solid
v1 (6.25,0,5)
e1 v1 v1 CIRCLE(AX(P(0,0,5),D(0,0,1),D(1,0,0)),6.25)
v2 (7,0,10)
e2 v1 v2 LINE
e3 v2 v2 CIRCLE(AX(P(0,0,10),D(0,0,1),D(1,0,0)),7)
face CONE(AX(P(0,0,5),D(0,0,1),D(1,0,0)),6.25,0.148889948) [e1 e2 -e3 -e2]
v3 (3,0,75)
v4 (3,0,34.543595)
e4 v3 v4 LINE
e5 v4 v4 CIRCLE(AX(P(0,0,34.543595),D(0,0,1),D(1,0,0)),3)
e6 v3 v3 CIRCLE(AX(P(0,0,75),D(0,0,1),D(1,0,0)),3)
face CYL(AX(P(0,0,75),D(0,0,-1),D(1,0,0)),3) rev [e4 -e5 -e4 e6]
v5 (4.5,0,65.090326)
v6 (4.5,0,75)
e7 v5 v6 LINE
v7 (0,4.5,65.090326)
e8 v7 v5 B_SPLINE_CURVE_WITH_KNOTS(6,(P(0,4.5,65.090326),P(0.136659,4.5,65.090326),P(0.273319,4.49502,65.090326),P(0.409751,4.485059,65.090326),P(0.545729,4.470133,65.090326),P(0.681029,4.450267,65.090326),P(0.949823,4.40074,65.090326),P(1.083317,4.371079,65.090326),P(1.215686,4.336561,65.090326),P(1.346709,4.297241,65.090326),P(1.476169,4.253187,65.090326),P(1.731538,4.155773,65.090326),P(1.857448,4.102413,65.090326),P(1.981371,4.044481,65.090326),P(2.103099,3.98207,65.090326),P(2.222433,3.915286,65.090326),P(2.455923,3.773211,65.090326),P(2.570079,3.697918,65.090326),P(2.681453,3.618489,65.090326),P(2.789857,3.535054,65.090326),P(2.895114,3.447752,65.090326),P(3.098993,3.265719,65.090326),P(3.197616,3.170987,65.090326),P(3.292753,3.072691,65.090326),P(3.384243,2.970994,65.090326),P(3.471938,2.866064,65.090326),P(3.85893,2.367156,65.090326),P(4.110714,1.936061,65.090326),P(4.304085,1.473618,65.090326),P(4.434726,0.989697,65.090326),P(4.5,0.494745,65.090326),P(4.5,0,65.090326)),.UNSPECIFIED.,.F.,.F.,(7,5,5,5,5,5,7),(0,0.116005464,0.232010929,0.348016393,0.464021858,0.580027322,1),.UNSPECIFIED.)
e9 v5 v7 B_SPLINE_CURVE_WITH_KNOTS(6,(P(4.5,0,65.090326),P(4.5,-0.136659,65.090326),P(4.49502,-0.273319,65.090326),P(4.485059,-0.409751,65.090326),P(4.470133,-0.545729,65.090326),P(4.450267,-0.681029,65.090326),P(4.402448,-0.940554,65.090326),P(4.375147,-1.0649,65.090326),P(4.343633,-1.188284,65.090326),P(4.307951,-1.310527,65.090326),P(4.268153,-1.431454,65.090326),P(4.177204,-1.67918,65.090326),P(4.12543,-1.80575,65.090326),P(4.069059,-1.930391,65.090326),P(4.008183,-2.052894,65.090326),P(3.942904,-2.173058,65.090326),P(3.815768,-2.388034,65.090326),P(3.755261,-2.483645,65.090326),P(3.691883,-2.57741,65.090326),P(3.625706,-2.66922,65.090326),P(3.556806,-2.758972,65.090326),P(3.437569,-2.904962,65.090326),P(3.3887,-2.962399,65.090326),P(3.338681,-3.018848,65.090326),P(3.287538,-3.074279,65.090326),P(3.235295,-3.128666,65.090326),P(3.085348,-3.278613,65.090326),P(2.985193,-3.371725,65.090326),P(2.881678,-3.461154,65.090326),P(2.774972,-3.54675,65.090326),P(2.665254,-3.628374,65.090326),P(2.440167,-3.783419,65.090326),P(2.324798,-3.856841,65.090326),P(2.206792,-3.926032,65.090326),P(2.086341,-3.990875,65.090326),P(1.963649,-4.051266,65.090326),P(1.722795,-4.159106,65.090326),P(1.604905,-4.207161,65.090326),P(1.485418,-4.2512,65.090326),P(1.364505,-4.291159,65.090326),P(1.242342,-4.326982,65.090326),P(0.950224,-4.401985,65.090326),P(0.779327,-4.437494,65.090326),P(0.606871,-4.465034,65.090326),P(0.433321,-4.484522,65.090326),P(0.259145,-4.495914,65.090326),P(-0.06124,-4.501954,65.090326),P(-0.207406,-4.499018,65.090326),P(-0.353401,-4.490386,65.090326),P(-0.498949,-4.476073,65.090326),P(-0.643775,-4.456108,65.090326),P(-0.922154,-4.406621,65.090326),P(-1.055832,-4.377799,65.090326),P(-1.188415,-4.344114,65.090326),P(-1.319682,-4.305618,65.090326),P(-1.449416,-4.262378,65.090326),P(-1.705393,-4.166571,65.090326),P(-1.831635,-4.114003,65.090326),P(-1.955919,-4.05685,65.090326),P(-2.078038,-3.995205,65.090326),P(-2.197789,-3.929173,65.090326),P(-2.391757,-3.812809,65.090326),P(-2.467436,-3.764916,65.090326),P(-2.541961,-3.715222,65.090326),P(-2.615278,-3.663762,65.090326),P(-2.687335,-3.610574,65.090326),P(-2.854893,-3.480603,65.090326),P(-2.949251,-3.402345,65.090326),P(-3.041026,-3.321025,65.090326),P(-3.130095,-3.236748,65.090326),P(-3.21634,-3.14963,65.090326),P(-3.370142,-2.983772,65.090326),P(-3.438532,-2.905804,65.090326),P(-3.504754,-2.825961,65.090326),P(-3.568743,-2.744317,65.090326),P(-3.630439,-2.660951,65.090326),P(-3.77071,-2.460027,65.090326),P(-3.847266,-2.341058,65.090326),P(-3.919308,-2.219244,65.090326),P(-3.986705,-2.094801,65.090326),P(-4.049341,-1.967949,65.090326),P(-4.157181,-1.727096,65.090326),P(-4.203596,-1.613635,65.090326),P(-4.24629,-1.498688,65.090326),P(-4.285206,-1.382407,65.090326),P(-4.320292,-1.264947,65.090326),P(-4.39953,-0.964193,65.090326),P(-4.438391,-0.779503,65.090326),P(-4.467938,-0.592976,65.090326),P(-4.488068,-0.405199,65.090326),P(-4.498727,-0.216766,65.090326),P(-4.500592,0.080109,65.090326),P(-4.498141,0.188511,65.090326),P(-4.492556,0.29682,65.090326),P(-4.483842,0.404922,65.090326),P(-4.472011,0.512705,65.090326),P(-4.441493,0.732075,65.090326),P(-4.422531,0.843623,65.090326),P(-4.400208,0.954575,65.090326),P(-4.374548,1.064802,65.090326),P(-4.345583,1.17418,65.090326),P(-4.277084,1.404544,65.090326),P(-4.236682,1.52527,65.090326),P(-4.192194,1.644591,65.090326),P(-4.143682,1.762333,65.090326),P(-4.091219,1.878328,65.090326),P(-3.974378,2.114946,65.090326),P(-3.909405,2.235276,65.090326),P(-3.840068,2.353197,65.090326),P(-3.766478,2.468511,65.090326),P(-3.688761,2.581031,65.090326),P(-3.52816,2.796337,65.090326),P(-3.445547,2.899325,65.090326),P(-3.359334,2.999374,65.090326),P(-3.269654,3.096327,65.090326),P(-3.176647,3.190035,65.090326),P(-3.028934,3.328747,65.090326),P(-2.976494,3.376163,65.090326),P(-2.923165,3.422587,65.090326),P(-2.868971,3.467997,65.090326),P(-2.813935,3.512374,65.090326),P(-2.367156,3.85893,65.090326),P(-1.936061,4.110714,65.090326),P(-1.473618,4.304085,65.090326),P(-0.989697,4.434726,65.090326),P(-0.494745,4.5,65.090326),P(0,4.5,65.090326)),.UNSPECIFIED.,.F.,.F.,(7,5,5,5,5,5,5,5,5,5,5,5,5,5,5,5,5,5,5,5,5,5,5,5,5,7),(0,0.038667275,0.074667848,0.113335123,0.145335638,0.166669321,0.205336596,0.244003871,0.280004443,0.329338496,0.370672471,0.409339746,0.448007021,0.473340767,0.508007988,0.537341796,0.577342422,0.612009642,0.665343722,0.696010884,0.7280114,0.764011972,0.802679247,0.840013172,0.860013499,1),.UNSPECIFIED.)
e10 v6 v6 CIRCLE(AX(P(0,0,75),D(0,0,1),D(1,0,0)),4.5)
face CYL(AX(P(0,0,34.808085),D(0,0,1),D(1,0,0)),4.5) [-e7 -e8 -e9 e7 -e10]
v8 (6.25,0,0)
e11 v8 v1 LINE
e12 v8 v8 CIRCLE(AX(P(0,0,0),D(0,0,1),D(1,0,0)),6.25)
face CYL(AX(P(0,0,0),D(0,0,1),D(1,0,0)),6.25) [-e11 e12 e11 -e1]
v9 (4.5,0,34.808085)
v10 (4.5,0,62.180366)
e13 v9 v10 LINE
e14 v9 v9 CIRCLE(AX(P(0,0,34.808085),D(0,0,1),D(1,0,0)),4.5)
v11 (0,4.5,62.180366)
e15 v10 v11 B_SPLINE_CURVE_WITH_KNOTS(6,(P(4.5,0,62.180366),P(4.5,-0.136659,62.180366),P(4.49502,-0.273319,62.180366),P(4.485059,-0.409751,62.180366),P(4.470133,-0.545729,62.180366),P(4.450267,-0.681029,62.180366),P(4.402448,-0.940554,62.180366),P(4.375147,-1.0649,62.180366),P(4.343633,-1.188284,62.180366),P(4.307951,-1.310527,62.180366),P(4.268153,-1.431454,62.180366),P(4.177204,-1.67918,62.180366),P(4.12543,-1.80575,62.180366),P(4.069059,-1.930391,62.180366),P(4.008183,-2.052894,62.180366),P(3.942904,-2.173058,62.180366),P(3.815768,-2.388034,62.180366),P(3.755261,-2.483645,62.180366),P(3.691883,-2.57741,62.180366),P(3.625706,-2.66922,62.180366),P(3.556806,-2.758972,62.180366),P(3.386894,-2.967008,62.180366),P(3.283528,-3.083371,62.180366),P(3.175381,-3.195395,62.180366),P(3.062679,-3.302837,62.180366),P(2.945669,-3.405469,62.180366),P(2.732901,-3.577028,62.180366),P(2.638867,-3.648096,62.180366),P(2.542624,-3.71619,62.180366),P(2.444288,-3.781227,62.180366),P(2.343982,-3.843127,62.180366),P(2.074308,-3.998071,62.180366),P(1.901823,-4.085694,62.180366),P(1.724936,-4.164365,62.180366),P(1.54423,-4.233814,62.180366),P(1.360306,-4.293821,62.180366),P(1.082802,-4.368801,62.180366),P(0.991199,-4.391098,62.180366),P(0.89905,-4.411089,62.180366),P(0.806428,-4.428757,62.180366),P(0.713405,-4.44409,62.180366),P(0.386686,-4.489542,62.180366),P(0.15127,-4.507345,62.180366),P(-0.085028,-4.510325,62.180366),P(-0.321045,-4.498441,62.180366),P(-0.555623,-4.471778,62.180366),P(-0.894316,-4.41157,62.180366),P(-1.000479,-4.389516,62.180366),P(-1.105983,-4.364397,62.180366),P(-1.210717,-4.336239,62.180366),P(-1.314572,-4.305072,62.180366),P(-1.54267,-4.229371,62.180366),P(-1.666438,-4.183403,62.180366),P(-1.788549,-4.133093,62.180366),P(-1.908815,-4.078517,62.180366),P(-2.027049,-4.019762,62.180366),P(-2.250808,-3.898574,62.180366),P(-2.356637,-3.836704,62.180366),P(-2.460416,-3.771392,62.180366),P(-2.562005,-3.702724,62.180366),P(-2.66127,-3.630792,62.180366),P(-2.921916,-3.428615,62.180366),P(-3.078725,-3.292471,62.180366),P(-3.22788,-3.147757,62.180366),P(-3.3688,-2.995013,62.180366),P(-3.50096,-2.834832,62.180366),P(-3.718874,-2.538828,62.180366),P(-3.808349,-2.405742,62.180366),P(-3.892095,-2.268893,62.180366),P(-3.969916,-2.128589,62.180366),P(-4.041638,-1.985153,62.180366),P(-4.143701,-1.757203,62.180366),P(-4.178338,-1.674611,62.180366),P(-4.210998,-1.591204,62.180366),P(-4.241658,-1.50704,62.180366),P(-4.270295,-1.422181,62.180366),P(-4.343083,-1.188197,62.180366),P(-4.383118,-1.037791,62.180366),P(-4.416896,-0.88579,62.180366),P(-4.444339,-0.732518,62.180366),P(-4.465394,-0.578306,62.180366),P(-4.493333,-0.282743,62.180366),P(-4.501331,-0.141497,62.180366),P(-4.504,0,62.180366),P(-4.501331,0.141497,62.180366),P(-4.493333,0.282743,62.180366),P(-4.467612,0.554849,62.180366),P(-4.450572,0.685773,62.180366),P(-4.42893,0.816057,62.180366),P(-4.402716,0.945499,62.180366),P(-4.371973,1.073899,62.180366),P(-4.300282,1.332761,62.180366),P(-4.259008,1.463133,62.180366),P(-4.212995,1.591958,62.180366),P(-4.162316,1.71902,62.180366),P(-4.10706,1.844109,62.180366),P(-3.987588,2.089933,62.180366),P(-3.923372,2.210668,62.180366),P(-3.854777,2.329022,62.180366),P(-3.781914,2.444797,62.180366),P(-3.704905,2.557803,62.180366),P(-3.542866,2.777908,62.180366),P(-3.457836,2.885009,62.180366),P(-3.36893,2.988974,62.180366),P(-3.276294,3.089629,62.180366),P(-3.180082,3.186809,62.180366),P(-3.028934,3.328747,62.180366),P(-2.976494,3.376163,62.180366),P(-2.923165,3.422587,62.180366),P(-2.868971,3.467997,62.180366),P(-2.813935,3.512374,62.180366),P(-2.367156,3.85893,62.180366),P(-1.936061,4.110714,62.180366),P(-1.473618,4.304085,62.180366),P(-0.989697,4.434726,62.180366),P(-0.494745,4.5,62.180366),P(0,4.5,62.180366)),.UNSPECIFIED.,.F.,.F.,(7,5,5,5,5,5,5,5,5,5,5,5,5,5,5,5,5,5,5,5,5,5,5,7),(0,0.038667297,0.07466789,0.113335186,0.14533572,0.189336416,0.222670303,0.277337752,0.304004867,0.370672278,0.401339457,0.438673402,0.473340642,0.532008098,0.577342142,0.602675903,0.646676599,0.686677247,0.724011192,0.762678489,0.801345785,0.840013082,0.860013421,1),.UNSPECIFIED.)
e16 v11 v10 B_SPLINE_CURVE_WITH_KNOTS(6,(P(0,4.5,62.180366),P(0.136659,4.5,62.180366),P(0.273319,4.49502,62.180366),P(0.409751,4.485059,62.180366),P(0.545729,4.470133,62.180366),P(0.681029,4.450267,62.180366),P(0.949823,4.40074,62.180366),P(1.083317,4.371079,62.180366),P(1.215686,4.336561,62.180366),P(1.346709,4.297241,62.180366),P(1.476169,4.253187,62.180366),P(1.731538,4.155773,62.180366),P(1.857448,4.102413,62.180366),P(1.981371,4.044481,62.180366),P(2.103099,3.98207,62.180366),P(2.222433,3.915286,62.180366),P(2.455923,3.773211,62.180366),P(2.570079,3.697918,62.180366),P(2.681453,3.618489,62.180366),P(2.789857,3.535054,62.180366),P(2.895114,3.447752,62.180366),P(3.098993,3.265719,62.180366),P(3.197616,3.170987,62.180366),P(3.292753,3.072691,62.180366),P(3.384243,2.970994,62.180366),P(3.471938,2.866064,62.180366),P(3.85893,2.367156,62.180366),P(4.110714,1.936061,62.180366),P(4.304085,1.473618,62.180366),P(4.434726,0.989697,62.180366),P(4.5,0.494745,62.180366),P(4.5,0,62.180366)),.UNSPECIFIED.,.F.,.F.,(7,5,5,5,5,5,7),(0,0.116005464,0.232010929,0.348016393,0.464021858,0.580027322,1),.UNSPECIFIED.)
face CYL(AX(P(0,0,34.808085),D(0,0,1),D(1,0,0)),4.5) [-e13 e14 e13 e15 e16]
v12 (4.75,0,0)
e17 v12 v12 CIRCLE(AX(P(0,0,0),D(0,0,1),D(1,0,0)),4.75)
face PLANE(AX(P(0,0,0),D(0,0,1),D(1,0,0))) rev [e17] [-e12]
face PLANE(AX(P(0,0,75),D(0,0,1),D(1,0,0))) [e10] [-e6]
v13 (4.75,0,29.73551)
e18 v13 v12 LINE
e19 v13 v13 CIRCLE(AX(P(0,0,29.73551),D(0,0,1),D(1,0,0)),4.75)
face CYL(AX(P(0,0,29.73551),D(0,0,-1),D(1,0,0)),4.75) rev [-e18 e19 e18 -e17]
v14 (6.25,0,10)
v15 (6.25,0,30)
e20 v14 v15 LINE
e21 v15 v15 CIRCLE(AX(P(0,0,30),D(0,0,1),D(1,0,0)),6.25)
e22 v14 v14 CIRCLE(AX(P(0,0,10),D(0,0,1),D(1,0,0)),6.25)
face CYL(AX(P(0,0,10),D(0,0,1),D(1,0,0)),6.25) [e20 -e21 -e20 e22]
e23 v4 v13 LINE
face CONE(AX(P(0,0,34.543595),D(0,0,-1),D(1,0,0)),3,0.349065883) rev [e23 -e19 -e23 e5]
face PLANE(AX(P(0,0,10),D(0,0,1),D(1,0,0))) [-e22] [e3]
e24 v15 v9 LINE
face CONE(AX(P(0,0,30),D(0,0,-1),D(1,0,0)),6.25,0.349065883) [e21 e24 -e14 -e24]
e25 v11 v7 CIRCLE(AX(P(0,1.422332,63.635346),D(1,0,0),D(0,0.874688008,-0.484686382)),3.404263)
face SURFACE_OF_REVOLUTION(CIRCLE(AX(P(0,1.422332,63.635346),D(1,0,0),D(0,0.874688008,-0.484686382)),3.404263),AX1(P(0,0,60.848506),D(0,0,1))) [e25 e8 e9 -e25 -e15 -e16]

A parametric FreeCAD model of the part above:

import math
import FreeCAD as App
import Part
import Sketcher
from FreeCAD import Vector
Q = App.Units.Quantity


def add_polygon(sketch, points):
    """Adds a closed chain of lines whose ends are joined by coincident constraints."""
    first, n = sketch.GeometryCount, len(points)
    for a, b in zip(points, points[1:] + points[:1]):
        sketch.addGeometry(Part.LineSegment(App.Vector(*a, 0), App.Vector(*b, 0)), False)
    for i in range(n):
        sketch.addConstraint(Sketcher.Constraint("Coincident", first + i, 2, first + (i + 1) % n, 1))

doc = App.newDocument("Part")
body = doc.addObject("PartDesign::Body", "Body")

# Sketch on XZ plane
sketch1 = body.newObject("Sketcher::SketchObject", "Sketch")
sketch1.AttachmentSupport = (doc.getObject("XZ_Plane"), [""])
sketch1.MapMode = "FlatFace"
add_polygon(sketch1, [(4.75, 0), (6.25, 0), (6.25, 5), (7, 10), (6.25, 10), (6.25, 30), (4.5, 34.808085), (4.5, 75), (3, 75), (3, 34.543595), (4.75, 29.73551)])  # lines 0-10
sketch1.addConstraint([
    Sketcher.Constraint("Horizontal", 0),
    Sketcher.Constraint("Vertical", 1),
    Sketcher.Constraint("Horizontal", 3),
    Sketcher.Constraint("Vertical", 4),
    Sketcher.Constraint("Vertical", 6),
    Sketcher.Constraint("Horizontal", 7),
    Sketcher.Constraint("Vertical", 8),
    Sketcher.Constraint("Vertical", 10),
    Sketcher.Constraint("PointOnObject", 0, 2, -1),
    Sketcher.Constraint("Parallel", 5, 9),
    Sketcher.Constraint("Vertical", 1, 2, 3, 2),
    Sketcher.Constraint("Equal", 0, 7),
    Sketcher.Constraint("DistanceY", 1, 1, 1, 2, Q("5 mm")),
    Sketcher.Constraint("DistanceY", 4, 1, 4, 2, Q("20 mm")),
    Sketcher.Constraint("Angle", 5, Q("110.000002 deg")),
    Sketcher.Constraint("DistanceX", 0, 1, 0, 2, Q("1.5 mm")),
    Sketcher.Constraint("DistanceX", -1, 1, 2, 2, Q("7 mm")),
    Sketcher.Constraint("DistanceY", -1, 1, 2, 2, Q("10 mm")),
    Sketcher.Constraint("DistanceY", -1, 1, 6, 2, Q("75 mm")),
    Sketcher.Constraint("DistanceX", -1, 1, 7, 2, Q("3 mm")),
    Sketcher.Constraint("DistanceX", 3, 2, 3, 1, Q("0.75 mm")),
    Sketcher.Constraint("DistanceY", 10, 2, 10, 1, Q("29.73551 mm")),
])
revolution = body.newObject("PartDesign::Revolution", "Revolution")
revolution.Profile = sketch1
revolution.ReferenceAxis = (sketch1, ["V_Axis"])
revolution.Angle = 360

# Sketch on YZ plane
sketch2 = body.newObject("Sketcher::SketchObject", "Sketch001")
sketch2.AttachmentSupport = (doc.getObject("YZ_Plane"), [""])
sketch2.MapMode = "FlatFace"
sketch2.addGeometry([
    Part.LineSegment(Vector(4.4, 65.285346, 0), Vector(4.4, 61.985346, 0)),
    Part.ArcOfCircle(Part.Circle(Vector(1.422332, 63.635346, 0), Vector(0, 0, 1), 3.404263), math.radians(-28.991927), math.radians(28.991927)),
], False)
sketch2.addConstraint([
    Sketcher.Constraint("Coincident", 0, 1, 1, 2),
    Sketcher.Constraint("Coincident", 1, 1, 0, 2),
    Sketcher.Constraint("Vertical", 0),
    Sketcher.Constraint("DistanceY", 0, 2, 0, 1, Q("3.3 mm")),
    Sketcher.Constraint("DistanceX", -1, 1, 0, 1, Q("4.4 mm")),
    Sketcher.Constraint("Radius", 1, Q("3.404263 mm")),
    Sketcher.Constraint("DistanceY", -1, 1, 1, 3, Q("63.635346 mm")),
])
revolution2 = body.newObject("PartDesign::Revolution", "Revolution001")
revolution2.Profile = sketch2
revolution2.ReferenceAxis = (sketch2, ["V_Axis"])
revolution2.Angle = 360

doc.recompute()
